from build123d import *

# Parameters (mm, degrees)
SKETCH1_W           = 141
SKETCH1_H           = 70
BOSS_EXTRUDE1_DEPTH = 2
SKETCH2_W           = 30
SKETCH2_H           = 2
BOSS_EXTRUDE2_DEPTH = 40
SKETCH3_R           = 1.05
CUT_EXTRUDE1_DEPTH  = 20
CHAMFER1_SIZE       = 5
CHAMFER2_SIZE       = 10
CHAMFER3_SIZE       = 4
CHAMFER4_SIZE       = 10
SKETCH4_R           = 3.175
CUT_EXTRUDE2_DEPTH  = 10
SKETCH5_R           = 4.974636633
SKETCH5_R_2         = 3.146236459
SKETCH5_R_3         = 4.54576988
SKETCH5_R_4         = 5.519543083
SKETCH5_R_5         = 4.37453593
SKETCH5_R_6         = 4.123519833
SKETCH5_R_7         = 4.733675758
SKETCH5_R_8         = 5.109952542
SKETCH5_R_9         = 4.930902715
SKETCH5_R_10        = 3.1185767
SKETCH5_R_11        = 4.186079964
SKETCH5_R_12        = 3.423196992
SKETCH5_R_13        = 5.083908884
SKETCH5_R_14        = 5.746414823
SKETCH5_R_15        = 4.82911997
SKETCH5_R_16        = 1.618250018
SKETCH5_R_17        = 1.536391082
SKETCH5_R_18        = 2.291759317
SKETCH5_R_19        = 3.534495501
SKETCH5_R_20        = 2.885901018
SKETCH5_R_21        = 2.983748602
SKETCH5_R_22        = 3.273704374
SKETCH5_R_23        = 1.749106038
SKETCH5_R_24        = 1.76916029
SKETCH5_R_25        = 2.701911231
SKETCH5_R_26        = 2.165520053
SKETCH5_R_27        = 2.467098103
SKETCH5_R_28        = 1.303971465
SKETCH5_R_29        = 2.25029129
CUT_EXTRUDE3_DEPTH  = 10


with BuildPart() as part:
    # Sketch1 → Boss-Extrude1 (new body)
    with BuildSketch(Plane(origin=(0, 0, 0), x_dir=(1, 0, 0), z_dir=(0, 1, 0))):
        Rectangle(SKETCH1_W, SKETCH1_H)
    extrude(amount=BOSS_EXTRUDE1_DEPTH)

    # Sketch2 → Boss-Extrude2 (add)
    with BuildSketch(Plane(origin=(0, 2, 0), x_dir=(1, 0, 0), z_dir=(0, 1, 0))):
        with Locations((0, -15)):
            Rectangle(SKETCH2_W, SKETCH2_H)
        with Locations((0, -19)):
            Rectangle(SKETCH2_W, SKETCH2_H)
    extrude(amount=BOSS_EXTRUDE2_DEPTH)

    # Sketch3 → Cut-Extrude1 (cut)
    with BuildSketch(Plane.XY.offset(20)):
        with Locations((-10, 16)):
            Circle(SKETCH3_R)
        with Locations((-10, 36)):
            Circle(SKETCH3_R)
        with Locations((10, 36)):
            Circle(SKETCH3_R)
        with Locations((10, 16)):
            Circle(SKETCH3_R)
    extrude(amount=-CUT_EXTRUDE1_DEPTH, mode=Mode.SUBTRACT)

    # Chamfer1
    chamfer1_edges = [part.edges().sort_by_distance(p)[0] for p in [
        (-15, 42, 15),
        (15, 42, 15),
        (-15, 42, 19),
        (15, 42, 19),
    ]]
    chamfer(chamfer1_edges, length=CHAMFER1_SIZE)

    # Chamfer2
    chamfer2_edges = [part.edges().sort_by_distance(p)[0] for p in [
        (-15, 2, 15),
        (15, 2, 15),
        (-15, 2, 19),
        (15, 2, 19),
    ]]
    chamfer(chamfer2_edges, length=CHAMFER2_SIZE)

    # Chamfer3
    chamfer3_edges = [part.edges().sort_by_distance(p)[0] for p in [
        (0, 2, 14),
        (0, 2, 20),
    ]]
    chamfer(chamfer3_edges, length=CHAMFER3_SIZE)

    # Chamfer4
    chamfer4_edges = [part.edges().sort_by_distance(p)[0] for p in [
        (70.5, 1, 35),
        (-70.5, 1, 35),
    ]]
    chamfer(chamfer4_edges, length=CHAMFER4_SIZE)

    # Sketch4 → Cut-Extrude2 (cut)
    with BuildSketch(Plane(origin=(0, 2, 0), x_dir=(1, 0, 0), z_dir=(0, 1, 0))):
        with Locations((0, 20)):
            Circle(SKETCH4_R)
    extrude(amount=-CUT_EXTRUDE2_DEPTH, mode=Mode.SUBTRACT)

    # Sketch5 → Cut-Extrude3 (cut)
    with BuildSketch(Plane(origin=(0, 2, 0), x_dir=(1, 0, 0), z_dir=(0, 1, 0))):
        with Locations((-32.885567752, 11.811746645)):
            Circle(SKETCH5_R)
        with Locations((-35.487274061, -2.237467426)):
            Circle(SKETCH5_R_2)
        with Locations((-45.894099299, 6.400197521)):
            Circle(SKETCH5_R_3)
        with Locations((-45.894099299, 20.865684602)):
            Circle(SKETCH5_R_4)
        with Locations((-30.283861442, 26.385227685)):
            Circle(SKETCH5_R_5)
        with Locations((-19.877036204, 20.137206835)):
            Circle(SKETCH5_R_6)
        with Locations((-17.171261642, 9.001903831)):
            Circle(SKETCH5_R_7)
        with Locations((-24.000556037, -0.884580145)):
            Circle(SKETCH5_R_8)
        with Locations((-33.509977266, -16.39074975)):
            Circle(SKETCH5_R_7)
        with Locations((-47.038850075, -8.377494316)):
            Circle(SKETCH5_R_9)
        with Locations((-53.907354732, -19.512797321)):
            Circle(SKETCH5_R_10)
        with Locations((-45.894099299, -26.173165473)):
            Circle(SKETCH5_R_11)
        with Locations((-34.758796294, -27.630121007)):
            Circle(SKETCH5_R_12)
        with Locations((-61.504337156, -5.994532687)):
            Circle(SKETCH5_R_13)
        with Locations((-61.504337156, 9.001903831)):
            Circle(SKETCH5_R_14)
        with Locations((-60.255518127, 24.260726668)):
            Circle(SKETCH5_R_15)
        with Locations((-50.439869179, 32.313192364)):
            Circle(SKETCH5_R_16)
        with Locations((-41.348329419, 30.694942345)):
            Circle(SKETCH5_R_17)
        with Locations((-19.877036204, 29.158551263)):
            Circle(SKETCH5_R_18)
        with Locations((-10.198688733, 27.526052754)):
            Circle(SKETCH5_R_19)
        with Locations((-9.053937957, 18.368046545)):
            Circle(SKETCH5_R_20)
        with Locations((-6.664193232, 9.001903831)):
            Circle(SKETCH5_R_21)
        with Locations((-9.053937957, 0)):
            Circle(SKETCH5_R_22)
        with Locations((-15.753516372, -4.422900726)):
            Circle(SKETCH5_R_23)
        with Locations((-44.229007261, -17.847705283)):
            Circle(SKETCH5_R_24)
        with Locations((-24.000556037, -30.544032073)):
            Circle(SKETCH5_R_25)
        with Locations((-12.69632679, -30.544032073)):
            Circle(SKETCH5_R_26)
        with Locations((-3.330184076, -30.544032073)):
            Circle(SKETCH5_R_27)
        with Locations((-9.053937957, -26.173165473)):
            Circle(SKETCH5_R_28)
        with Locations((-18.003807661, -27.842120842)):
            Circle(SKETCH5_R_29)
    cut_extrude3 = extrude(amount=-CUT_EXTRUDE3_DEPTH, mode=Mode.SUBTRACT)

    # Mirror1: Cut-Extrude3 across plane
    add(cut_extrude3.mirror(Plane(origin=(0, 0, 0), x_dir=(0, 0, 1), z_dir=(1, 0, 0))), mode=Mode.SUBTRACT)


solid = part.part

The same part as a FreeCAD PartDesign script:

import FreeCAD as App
import Part
import Sketcher

V = App.Vector
Q = App.Units.Quantity


def edges_at(feature, points):
    """Names of the edges that pass closest to the given points."""
    edges = feature.Shape.Edges
    near = lambda p: min(range(len(edges)), key=lambda i: edges[i].distToShape(Part.Vertex(*p))[0])
    return sorted({f"Edge{near(p) + 1}" for p in points})


def add_polygon(sketch, points):
    """Adds a closed chain of lines whose ends are joined by coincident constraints."""
    first, n = sketch.GeometryCount, len(points)
    for a, b in zip(points, points[1:] + points[:1]):
        sketch.addGeometry(Part.LineSegment(App.Vector(*a, 0), App.Vector(*b, 0)), False)
    for i in range(n):
        sketch.addConstraint(Sketcher.Constraint("Coincident", first + i, 2, first + (i + 1) % n, 1))

doc = App.newDocument("Part")
body = doc.addObject("PartDesign::Body", "Body")

# Sketch on XZ plane
sketch1 = body.newObject("Sketcher::SketchObject", "Sketch")
sketch1.AttachmentSupport = (doc.getObject("XZ_Plane"), [""])
sketch1.MapMode = "FlatFace"
add_polygon(sketch1, [(-70, -35), (-70, 35), (70, 35), (70, -35)])  # lines 0-3
sketch1.addConstraint([
    Sketcher.Constraint("Vertical", 0),
    Sketcher.Constraint("Horizontal", 1),
    Sketcher.Constraint("Vertical", 2),
    Sketcher.Constraint("Horizontal", 3),
    Sketcher.Constraint("Symmetric", 0, 2, 2, 2, -1, 1),
    Sketcher.Constraint("DistanceX", 1, 1, 1, 2, Q("141 mm")),
    Sketcher.Constraint("DistanceY", 0, 1, 0, 2, Q("70 mm")),
])
pad1 = body.newObject("PartDesign::Pad", "Pad")
pad1.Profile = sketch1
pad1.Length = 2
pad1.Reversed = True

# Sketch on XZ plane
sketch2 = body.newObject("Sketcher::SketchObject", "Sketch001")
sketch2.AttachmentSupport = (doc.getObject("XZ_Plane"), [""])
sketch2.MapMode = "FlatFace"
sketch2.AttachmentOffset = App.Placement(V(0, 0, -2), App.Rotation())
add_polygon(sketch2, [(-15, 14), (-15, 16), (15, 16), (15, 14)])  # lines 0-3
add_polygon(sketch2, [(-15, 18), (-15, 20), (15, 20), (15, 18)])  # lines 4-7
sketch2.addConstraint([
    Sketcher.Constraint("Vertical", 0),
    Sketcher.Constraint("Horizontal", 1),
    Sketcher.Constraint("Vertical", 2),
    Sketcher.Constraint("Horizontal", 3),
    Sketcher.Constraint("Vertical", 4),
    Sketcher.Constraint("Horizontal", 5),
    Sketcher.Constraint("Vertical", 6),
    Sketcher.Constraint("Horizontal", 7),
    Sketcher.Constraint("Vertical", 3, 2, 4, 2),
    Sketcher.Constraint("Vertical", 2, 2, 5, 2),
    Sketcher.Constraint("Equal", 2, 4),
    Sketcher.Constraint("DistanceX", 1, 1, 1, 2, Q("30 mm")),
    Sketcher.Constraint("DistanceY", 0, 1, 0, 2, Q("2 mm")),
    Sketcher.Constraint("DistanceX", 0, 2, -1, 1, Q("15 mm")),
    Sketcher.Constraint("DistanceY", -1, 1, 0, 2, Q("16 mm")),
    Sketcher.Constraint("DistanceY", -1, 1, 4, 2, Q("20 mm")),
])
pad2 = body.newObject("PartDesign::Pad", "Pad001")
pad2.Profile = sketch2
pad2.Length = 40
pad2.Reversed = True

# Sketch on XY plane
sketch3 = body.newObject("Sketcher::SketchObject", "Sketch002")
sketch3.AttachmentSupport = (doc.getObject("XY_Plane"), [""])
sketch3.MapMode = "FlatFace"
sketch3.AttachmentOffset = App.Placement(V(0, 0, 20), App.Rotation())
sketch3.addGeometry([
    Part.Circle(V(-10, 16, 0), V(0, 0, 1), 1.1),
    Part.Circle(V(-10, 36, 0), V(0, 0, 1), 1.1),
    Part.Circle(V(10, 36, 0), V(0, 0, 1), 1.1),
    Part.Circle(V(10, 16, 0), V(0, 0, 1), 1.1),
], False)
sketch3.addConstraint([
    Sketcher.Constraint("Equal", 0, 1),
    Sketcher.Constraint("Equal", 1, 2),
    Sketcher.Constraint("Equal", 2, 3),
    Sketcher.Constraint("Symmetric", 1, 3, 2, 3, -2),
    Sketcher.Constraint("Symmetric", 0, 3, 3, 3, -2),
    Sketcher.Constraint("Vertical", 0, 3, 1, 3),
    Sketcher.Constraint("Diameter", 0, Q("2.1 mm")),
    Sketcher.Constraint("DistanceX", 0, 3, -1, 1, Q("10 mm")),
    Sketcher.Constraint("DistanceY", -1, 1, 0, 3, Q("16 mm")),
    Sketcher.Constraint("DistanceY", -1, 1, 1, 3, Q("36 mm")),
])
pocket1 = body.newObject("PartDesign::Pocket", "Pocket")
pocket1.Profile = sketch3
pocket1.Length = 20
doc.recompute()

chamfer = body.newObject("PartDesign::Chamfer", "Chamfer")
chamfer.Base = (pocket1, edges_at(pocket1, [
    (-15, 42, 15),
    (15, 42, 15),
    (-15, 42, 19),
    (15, 42, 19),
]))
chamfer.Size = 5
doc.recompute()

chamfer2 = body.newObject("PartDesign::Chamfer", "Chamfer001")
chamfer2.Base = (chamfer, edges_at(chamfer, [
    (-15, 2, 15),
    (15, 2, 15),
    (-15, 2, 19),
    (15, 2, 19),
]))
chamfer2.Size = 10
doc.recompute()

chamfer3 = body.newObject("PartDesign::Chamfer", "Chamfer002")
chamfer3.Base = (chamfer2, edges_at(chamfer2, [(0, 2, 14), (0, 2, 20)]))
chamfer3.Size = 4
doc.recompute()

chamfer4 = body.newObject("PartDesign::Chamfer", "Chamfer003")
chamfer4.Base = (chamfer3, edges_at(chamfer3, [(70.5, 1, 35), (-70.5, 1, 35)]))
chamfer4.Size = 10

# Sketch on XZ plane
sketch4 = body.newObject("Sketcher::SketchObject", "Sketch003")
sketch4.AttachmentSupport = (doc.getObject("XZ_Plane"), [""])
sketch4.MapMode = "FlatFace"
sketch4.AttachmentOffset = App.Placement(V(0, 0, -2), App.Rotation())
sketch4.addGeometry(Part.Circle(V(0, -20, 0), V(0, 0, 1), 3.2), False)
sketch4.addConstraint([
    Sketcher.Constraint("PointOnObject", 0, 3, -2),
    Sketcher.Constraint("Diameter", 0, Q("6.35 mm")),
    Sketcher.Constraint("DistanceY", 0, 3, -1, 1, Q("20 mm")),
])
pocket2 = body.newObject("PartDesign::Pocket", "Pocket001")
pocket2.Profile = sketch4
pocket2.Length = 10
pocket2.Reversed = True

# Sketch on XZ plane
sketch5 = body.newObject("Sketcher::SketchObject", "Sketch004")
sketch5.AttachmentSupport = (doc.getObject("XZ_Plane"), [""])
sketch5.MapMode = "FlatFace"
sketch5.AttachmentOffset = App.Placement(V(0, 0, -2), App.Rotation())
sketch5.addGeometry([
    Part.Circle(V(-32.9, -11.8, 0), V(0, 0, 1), 5),  # 0
    Part.Circle(V(-35.5, 2.2, 0), V(0, 0, 1), 3.1),  # 1
    Part.Circle(V(-45.9, -6.4, 0), V(0, 0, 1), 4.5),  # 2
    Part.Circle(V(-45.9, -20.9, 0), V(0, 0, 1), 5.5),  # 3
    Part.Circle(V(-30.3, -26.4, 0), V(0, 0, 1), 4.4),  # 4
    Part.Circle(V(-19.9, -20.1, 0), V(0, 0, 1), 4.1),  # 5
    Part.Circle(V(-17.2, -9, 0), V(0, 0, 1), 4.7),  # 6
    Part.Circle(V(-24, 0.9, 0), V(0, 0, 1), 5.1),  # 7
    Part.Circle(V(-33.5, 16.4, 0), V(0, 0, 1), 4.7),  # 8
    Part.Circle(V(-47, 8.4, 0), V(0, 0, 1), 4.9),  # 9
    Part.Circle(V(-53.9, 19.5, 0), V(0, 0, 1), 3.1),  # 10
    Part.Circle(V(-45.9, 26.2, 0), V(0, 0, 1), 4.2),  # 11
    Part.Circle(V(-34.8, 27.6, 0), V(0, 0, 1), 3.4),  # 12
    Part.Circle(V(-61.5, 6, 0), V(0, 0, 1), 5.1),  # 13
    Part.Circle(V(-61.5, -9, 0), V(0, 0, 1), 5.7),  # 14
    Part.Circle(V(-60.3, -24.3, 0), V(0, 0, 1), 4.8),  # 15
    Part.Circle(V(-50.4, -32.3, 0), V(0, 0, 1), 1.6),  # 16
    Part.Circle(V(-41.3, -30.7, 0), V(0, 0, 1), 1.5),  # 17
    Part.Circle(V(-19.9, -29.2, 0), V(0, 0, 1), 2.3),  # 18
    Part.Circle(V(-10.2, -27.5, 0), V(0, 0, 1), 3.5),  # 19
    Part.Circle(V(-9.1, -18.4, 0), V(0, 0, 1), 2.9),  # 20
    Part.Circle(V(-6.7, -9, 0), V(0, 0, 1), 3),  # 21
    Part.Circle(V(-9.1, 0, 0), V(0, 0, 1), 3.3),  # 22
    Part.Circle(V(-15.8, 4.4, 0), V(0, 0, 1), 1.7),  # 23
    Part.Circle(V(-44.2, 17.8, 0), V(0, 0, 1), 1.8),  # 24
    Part.Circle(V(-24, 30.5, 0), V(0, 0, 1), 2.7),  # 25
    Part.Circle(V(-12.7, 30.5, 0), V(0, 0, 1), 2.2),  # 26
    Part.Circle(V(-3.3, 30.5, 0), V(0, 0, 1), 2.5),  # 27
    Part.Circle(V(-9.1, 26.2, 0), V(0, 0, 1), 1.3),  # 28
    Part.Circle(V(-18, 27.8, 0), V(0, 0, 1), 2.3),  # 29
], False)
sketch5.addConstraint([
    Sketcher.Constraint("Equal", 6, 8),
    Sketcher.Constraint("PointOnObject", 22, 3, -1),
    Sketcher.Constraint("Horizontal", 6, 3, 14, 3),
    Sketcher.Constraint("Horizontal", 14, 3, 21, 3),
    Sketcher.Constraint("Horizontal", 25, 3, 26, 3),
    Sketcher.Constraint("Horizontal", 26, 3, 27, 3),
    Sketcher.Constraint("Horizontal", 11, 3, 28, 3),
    Sketcher.Constraint("Vertical", 2, 3, 3, 3),
    Sketcher.Constraint("Vertical", 3, 3, 11, 3),
    Sketcher.Constraint("Vertical", 13, 3, 14, 3),
    Sketcher.Constraint("Vertical", 5, 3, 18, 3),
    Sketcher.Constraint("Vertical", 20, 3, 22, 3),
    Sketcher.Constraint("Vertical", 7, 3, 25, 3),
    Sketcher.Constraint("Vertical", 22, 3, 28, 3),
    Sketcher.Constraint("Diameter", 16, Q("3.2365 mm")),
    Sketcher.Constraint("Diameter", 2, Q("9.09154 mm")),
    Sketcher.Constraint("Diameter", 4, Q("8.749072 mm")),
    Sketcher.Constraint("Diameter", 5, Q("8.24704 mm")),
    Sketcher.Constraint("Diameter", 6, Q("9.467352 mm")),
    Sketcher.Constraint("Diameter", 11, Q("8.37216 mm")),
    Sketcher.Constraint("Diameter", 14, Q("11.49283 mm")),
    Sketcher.Constraint("Diameter", 15, Q("9.65824 mm")),
    Sketcher.Constraint("Diameter", 18, Q("4.583519 mm")),
    Sketcher.Constraint("Diameter", 19, Q("7.068991 mm")),
    Sketcher.Constraint("Diameter", 22, Q("6.547409 mm")),
    Sketcher.Constraint("Diameter", 24, Q("3.538321 mm")),
    Sketcher.Constraint("Diameter", 26, Q("4.33104 mm")),
    Sketcher.Constraint("Diameter", 0, Q("9.949273 mm")),
    Sketcher.Constraint("Diameter", 1, Q("6.292473 mm")),
    Sketcher.Constraint("Diameter", 3, Q("11.039086 mm")),
    Sketcher.Constraint("Diameter", 7, Q("10.219905 mm")),
    Sketcher.Constraint("Diameter", 9, Q("9.861805 mm")),
    Sketcher.Constraint("Diameter", 10, Q("6.237153 mm")),
    Sketcher.Constraint("Diameter", 12, Q("6.846394 mm")),
    Sketcher.Constraint("Diameter", 13, Q("10.167818 mm")),
    Sketcher.Constraint("Diameter", 17, Q("3.072782 mm")),
    Sketcher.Constraint("Diameter", 20, Q("5.771802 mm")),
    Sketcher.Constraint("Diameter", 21, Q("5.967497 mm")),
    Sketcher.Constraint("Diameter", 23, Q("3.498212 mm")),
    Sketcher.Constraint("Diameter", 25, Q("5.403822 mm")),
    Sketcher.Constraint("Diameter", 27, Q("4.934196 mm")),
    Sketcher.Constraint("Diameter", 28, Q("2.607943 mm")),
    Sketcher.Constraint("Diameter", 29, Q("4.500583 mm")),
    Sketcher.Constraint("DistanceY", 12, 3, 29, 3, Q("0.212 mm")),
    Sketcher.Constraint("DistanceX", 2, 3, -1, 1, Q("45.894099 mm")),
    Sketcher.Constraint("DistanceY", -1, 1, 23, 3, Q("4.422901 mm")),
    Sketcher.Constraint("DistanceX", 4, 3, 6, 3, Q("13.1126 mm")),
    Sketcher.Constraint("DistanceX", 10, 3, 7, 3, Q("29.906799 mm")),
    Sketcher.Constraint("DistanceY", 1, 3, 11, 3, Q("23.935698 mm")),
    Sketcher.Constraint("DistanceY", 14, 3, 9, 3, Q("17.379398 mm")),
    Sketcher.Constraint("DistanceY", 4, 3, 15, 3, Q("2.124501 mm")),
    Sketcher.Constraint("DistanceY", 18, 3, 19, 3, Q("1.632499 mm")),
    Sketcher.Constraint("DistanceX", 5, 3, 20, 3, Q("10.823098 mm")),
    Sketcher.Constraint("DistanceX", 4, 3, -1, 1, Q("30.283861 mm")),
    Sketcher.Constraint("DistanceY", -1, 1, 7, 3, Q("0.88458 mm")),
    Sketcher.Constraint("DistanceY", -1, 1, 8, 3, Q("16.39075 mm")),
    Sketcher.Constraint("DistanceX", 9, 3, -1, 1, Q("47.03885 mm")),
    Sketcher.Constraint("DistanceY", -1, 1, 12, 3, Q("27.630121 mm")),
    Sketcher.Constraint("DistanceX", 15, 3, -1, 1, Q("60.255518 mm")),
    Sketcher.Constraint("DistanceX", 16, 3, -1, 1, Q("50.439869 mm")),
    Sketcher.Constraint("DistanceX", 17, 3, -1, 1, Q("41.348329 mm")),
    Sketcher.Constraint("DistanceY", 18, 3, -1, 1, Q("29.158551 mm")),
    Sketcher.Constraint("DistanceX", 19, 3, -1, 1, Q("10.198689 mm")),
    Sketcher.Constraint("DistanceX", 2, 3, 0, 3, Q("13.008532 mm")),
    Sketcher.Constraint("DistanceY", 0, 3, 2, 3, Q("5.411549 mm")),
    Sketcher.Constraint("DistanceY", 4, 3, 0, 3, Q("14.573481 mm")),
    Sketcher.Constraint("DistanceY", 4, 3, 5, 3, Q("6.248021 mm")),
    Sketcher.Constraint("DistanceX", 0, 3, 5, 3, Q("13.008532 mm")),
    Sketcher.Constraint("DistanceY", 6, 3, 1, 3, Q("11.239371 mm")),
    Sketcher.Constraint("DistanceX", 1, 3, 7, 3, Q("11.486718 mm")),
    Sketcher.Constraint("DistanceX", 0, 3, 7, 3, Q("8.885012 mm")),
    Sketcher.Constraint("DistanceX", 8, 3, 7, 3, Q("9.509421 mm")),
    Sketcher.Constraint("DistanceY", 2, 3, 9, 3, Q("14.777692 mm")),
    Sketcher.Constraint("DistanceY", 1, 3, 10, 3, Q("17.27533 mm")),
    Sketcher.Constraint("DistanceX", 12, 3, 8, 3, Q("1.248819 mm")),
    Sketcher.Constraint("DistanceY", 13, 3, 9, 3, Q("2.382962 mm")),
    Sketcher.Constraint("DistanceY", 3, 3, 14, 3, Q("11.863781 mm")),
    Sketcher.Constraint("DistanceX", 14, 3, 15, 3, Q("1.248819 mm")),
    Sketcher.Constraint("DistanceY", 16, 3, 14, 3, Q("23.311289 mm")),
    Sketcher.Constraint("DistanceY", 16, 3, 17, 3, Q("1.61825 mm")),
    Sketcher.Constraint("DistanceY", 17, 3, 18, 3, Q("1.536391 mm")),
    Sketcher.Constraint("DistanceY", 5, 3, 20, 3, Q("1.76916 mm")),
    Sketcher.Constraint("DistanceX", 6, 3, 21, 3, Q("10.507068 mm")),
    Sketcher.Constraint("DistanceX", 23, 3, 22, 3, Q("6.699578 mm")),
    Sketcher.Constraint("DistanceY", 24, 3, 11, 3, Q("8.32546 mm")),
    Sketcher.Constraint("DistanceX", 24, 3, 8, 3, Q("10.71903 mm")),
    Sketcher.Constraint("DistanceY", 12, 3, 25, 3, Q("2.913911 mm")),
    Sketcher.Constraint("DistanceX", 25, 3, 26, 3, Q("11.304229 mm")),
    Sketcher.Constraint("DistanceX", 25, 3, 27, 3, Q("20.670372 mm")),
    Sketcher.Constraint("DistanceX", 29, 3, 26, 3, Q("5.307481 mm")),
])
pocket3 = body.newObject("PartDesign::Pocket", "Pocket002")
pocket3.Profile = sketch5
pocket3.Length = 10
pocket3.Reversed = True
doc.recompute()

mirrored = body.newObject("PartDesign::Mirrored", "Mirrored")
mirrored.Originals = [pocket3]
mirrored.MirrorPlane = (doc.getObject("YZ_Plane"), [""])
body.Tip = mirrored

doc.recompute()
